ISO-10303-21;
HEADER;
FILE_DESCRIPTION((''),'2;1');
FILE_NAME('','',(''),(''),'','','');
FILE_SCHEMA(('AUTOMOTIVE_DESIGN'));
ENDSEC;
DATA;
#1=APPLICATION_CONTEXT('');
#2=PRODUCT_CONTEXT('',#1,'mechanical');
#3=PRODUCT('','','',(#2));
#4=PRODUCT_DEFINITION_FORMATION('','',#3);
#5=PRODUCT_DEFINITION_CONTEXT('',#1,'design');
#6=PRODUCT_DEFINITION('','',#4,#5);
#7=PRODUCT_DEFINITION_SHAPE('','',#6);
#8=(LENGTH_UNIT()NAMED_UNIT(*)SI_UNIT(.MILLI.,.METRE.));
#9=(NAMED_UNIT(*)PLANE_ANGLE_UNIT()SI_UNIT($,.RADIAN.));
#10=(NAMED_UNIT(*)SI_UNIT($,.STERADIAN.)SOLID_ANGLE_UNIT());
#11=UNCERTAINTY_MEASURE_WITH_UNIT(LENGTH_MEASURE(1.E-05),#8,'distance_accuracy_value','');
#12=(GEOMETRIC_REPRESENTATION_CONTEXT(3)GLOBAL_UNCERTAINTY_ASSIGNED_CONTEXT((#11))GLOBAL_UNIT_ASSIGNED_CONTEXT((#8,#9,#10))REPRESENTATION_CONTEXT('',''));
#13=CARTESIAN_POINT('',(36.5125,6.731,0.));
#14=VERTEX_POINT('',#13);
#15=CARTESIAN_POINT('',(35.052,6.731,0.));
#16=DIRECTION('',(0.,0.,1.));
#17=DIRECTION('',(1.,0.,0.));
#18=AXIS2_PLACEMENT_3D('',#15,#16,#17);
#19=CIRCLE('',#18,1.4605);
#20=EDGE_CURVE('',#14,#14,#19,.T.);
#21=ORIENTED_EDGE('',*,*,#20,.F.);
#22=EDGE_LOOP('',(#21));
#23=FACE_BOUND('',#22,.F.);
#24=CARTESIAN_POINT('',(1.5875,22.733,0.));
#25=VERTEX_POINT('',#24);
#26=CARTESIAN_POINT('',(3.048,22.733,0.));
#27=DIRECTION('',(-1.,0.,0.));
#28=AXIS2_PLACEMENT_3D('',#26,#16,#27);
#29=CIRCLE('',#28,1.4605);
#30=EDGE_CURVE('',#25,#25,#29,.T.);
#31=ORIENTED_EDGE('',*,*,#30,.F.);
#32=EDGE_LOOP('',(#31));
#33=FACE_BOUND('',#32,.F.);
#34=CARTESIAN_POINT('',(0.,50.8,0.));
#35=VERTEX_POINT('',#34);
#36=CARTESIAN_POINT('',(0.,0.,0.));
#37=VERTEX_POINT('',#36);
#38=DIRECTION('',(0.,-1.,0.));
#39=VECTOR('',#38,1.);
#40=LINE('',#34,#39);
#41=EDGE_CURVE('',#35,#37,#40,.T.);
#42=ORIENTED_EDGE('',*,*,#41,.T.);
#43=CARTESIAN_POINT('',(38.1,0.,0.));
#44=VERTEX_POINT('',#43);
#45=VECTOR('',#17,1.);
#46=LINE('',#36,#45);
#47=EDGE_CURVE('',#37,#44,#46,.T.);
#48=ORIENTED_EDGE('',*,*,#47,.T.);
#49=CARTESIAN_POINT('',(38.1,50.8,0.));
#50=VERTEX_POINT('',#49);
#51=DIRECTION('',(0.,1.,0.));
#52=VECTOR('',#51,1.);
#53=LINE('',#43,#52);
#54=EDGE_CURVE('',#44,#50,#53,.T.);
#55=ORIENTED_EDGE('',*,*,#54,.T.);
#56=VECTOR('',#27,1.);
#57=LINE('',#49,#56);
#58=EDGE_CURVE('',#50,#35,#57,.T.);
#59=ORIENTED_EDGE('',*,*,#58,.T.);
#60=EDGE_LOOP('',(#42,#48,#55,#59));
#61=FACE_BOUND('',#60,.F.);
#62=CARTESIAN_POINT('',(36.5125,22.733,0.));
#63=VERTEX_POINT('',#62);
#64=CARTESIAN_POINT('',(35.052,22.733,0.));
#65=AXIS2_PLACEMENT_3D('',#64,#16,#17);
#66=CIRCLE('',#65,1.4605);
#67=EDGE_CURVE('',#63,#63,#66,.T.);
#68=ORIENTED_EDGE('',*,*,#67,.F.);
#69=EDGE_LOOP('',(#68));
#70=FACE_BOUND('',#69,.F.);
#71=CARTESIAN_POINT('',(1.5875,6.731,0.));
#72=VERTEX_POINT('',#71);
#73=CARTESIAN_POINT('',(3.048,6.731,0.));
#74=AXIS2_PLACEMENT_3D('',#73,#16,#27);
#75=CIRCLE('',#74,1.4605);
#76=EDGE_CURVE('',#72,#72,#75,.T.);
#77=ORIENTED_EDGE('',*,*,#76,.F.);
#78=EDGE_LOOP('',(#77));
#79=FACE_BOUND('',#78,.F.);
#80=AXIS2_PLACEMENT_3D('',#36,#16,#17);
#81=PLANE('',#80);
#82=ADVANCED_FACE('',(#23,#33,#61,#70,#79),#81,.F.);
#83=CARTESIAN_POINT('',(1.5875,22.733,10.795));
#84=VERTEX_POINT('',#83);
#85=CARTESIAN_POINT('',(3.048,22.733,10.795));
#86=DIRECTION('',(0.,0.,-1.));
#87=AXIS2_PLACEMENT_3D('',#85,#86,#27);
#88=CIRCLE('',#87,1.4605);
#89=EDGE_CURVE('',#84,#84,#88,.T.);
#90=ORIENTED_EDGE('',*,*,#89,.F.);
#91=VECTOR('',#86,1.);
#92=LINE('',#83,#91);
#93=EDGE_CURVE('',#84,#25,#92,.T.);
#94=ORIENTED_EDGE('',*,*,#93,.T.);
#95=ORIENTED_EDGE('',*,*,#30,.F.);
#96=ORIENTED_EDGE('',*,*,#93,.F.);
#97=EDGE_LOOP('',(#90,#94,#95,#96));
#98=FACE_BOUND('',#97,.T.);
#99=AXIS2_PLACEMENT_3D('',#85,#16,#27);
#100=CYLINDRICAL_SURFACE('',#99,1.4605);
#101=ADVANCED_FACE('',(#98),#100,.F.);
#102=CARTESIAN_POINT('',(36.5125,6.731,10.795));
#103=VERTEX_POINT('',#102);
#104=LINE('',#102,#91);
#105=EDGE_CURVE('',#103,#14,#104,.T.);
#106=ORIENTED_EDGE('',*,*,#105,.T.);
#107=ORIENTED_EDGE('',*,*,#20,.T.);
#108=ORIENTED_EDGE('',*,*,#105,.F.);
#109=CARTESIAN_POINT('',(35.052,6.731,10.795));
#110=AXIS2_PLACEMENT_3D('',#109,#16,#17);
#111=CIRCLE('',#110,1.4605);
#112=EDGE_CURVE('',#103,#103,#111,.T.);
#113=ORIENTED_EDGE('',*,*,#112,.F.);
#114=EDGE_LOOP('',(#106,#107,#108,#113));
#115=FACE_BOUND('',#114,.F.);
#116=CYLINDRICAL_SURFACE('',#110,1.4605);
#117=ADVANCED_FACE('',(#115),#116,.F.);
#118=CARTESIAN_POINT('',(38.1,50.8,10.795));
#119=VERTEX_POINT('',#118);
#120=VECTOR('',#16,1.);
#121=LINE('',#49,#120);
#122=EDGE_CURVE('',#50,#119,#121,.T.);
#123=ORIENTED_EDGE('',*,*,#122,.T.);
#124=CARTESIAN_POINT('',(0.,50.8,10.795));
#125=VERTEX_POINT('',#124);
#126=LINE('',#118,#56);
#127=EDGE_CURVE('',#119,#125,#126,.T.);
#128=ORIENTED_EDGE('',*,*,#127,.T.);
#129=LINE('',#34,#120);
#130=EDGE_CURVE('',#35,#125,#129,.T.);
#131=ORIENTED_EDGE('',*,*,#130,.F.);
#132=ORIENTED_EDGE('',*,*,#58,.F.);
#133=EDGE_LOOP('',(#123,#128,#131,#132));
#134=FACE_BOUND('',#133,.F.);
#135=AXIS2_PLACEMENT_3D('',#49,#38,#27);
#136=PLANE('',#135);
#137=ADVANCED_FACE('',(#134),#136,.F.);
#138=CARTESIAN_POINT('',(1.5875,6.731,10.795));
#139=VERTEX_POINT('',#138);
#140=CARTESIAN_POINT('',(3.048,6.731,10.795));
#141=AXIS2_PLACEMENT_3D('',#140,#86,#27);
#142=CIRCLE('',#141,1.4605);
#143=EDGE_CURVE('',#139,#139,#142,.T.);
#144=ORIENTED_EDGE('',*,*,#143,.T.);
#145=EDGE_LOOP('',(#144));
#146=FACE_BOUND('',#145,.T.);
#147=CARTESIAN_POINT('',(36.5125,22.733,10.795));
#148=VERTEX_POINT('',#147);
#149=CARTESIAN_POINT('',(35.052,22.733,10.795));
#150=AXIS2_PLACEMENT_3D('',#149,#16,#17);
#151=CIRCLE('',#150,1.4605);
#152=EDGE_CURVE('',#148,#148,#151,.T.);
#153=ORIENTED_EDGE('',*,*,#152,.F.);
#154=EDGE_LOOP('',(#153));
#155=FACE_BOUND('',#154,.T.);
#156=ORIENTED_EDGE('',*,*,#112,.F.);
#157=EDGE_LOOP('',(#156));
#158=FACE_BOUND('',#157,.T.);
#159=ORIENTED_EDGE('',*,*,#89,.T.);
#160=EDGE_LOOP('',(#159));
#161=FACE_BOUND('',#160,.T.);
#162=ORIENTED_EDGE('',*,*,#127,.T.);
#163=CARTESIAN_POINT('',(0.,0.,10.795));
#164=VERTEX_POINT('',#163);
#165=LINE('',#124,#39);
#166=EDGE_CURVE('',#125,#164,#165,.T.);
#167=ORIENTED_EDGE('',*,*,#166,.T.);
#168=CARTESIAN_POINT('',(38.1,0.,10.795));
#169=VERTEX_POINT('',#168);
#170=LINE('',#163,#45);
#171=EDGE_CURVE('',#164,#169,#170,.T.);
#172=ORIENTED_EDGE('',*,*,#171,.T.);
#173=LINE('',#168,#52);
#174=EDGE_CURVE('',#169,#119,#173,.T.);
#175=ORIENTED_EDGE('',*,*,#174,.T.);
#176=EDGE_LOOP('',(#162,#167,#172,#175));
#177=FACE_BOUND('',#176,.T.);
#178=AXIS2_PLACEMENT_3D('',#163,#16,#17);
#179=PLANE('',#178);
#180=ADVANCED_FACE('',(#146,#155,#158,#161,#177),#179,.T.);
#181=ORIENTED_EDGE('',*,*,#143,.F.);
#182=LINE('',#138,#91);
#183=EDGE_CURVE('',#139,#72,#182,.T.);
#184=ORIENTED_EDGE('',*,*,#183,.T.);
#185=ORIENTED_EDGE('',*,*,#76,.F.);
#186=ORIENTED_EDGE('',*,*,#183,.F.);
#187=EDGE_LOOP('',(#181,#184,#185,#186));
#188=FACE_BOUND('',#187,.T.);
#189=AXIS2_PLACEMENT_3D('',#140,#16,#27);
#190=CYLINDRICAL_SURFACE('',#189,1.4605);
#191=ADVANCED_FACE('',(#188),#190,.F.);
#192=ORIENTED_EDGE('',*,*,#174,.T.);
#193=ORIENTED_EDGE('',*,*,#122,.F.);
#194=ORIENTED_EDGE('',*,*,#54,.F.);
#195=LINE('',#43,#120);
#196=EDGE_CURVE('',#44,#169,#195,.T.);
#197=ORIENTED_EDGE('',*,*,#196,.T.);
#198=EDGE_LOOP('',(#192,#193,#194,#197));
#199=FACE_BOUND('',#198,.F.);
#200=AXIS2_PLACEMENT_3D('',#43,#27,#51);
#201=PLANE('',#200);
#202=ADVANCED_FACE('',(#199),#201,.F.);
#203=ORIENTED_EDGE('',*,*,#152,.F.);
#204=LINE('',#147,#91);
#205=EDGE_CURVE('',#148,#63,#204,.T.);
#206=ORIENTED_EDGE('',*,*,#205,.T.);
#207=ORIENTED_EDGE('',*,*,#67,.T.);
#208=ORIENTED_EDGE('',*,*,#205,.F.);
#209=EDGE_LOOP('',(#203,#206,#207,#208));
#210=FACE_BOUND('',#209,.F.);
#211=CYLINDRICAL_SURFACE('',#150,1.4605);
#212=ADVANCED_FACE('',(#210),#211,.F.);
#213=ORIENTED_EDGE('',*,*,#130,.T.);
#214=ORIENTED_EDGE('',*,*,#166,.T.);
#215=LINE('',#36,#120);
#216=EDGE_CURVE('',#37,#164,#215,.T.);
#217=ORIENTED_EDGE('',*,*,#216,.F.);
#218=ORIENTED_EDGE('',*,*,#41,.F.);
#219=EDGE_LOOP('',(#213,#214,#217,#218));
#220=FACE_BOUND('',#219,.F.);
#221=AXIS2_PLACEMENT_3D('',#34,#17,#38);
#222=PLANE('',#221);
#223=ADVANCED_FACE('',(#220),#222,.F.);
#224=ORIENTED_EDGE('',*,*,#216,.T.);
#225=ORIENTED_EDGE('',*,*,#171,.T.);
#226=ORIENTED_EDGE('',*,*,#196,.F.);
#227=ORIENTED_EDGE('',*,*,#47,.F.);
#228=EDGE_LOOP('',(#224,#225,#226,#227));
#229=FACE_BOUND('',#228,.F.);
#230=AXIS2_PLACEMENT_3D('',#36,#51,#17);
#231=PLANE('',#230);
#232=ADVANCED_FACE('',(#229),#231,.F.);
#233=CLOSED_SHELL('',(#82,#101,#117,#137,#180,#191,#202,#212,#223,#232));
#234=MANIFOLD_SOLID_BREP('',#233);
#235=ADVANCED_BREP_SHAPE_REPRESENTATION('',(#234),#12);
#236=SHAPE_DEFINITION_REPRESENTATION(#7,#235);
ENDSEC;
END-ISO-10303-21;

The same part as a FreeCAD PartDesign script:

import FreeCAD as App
import Part
import Sketcher

V = App.Vector
Q = App.Units.Quantity

doc = App.newDocument("Part")
params = doc.addObject("Spreadsheet::Sheet", "Params")
for row, (alias, value) in enumerate([
    ("sketch1_height", "2 in"),
    ("sketch1_width", "1.5 in"),
    ("pad1_length", "0.425 in"),
    ("sketch2_diameter", "0.115 in"),
], start=1):
    params.set(f"A{row}", alias)
    params.set(f"B{row}", "=" + value)
    params.setAlias(f"B{row}", alias)

body = doc.addObject("PartDesign::Body", "Body")

# Sketch on XY plane
sketch1 = body.newObject("Sketcher::SketchObject", "Sketch")
sketch1.AttachmentSupport = (doc.getObject("XY_Plane"), [""])
sketch1.MapMode = "FlatFace"
sketch1.addGeometry([
    Part.LineSegment(V(0, 50.8, 0), V(0, 0, 0)),
    Part.LineSegment(V(0, 0, 0), V(38.1, 0, 0)),
    Part.LineSegment(V(38.1, 0, 0), V(38.1, 50.8, 0)),
    Part.LineSegment(V(38.1, 50.8, 0), V(0, 50.8, 0)),
], False)
sketch1.addConstraint([
    Sketcher.Constraint("Coincident", 0, 2, 1, 1),
    Sketcher.Constraint("Coincident", 1, 2, 2, 1),
    Sketcher.Constraint("Coincident", 2, 2, 3, 1),
    Sketcher.Constraint("Coincident", 3, 2, 0, 1),
    Sketcher.Constraint("Vertical", 0),
    Sketcher.Constraint("Horizontal", 1),
    Sketcher.Constraint("Vertical", 2),
    Sketcher.Constraint("Horizontal", 3),
    Sketcher.Constraint("Coincident", 0, 2, -1, 1),
    Sketcher.Constraint("DistanceY", 0, 2, 0, 1, Q("2 in")),
    Sketcher.Constraint("DistanceX", 1, 1, 1, 2, Q("1.5 in")),
])
sketch1.setExpression("Constraints[9]", "Params.sketch1_height")
sketch1.setExpression("Constraints[10]", "Params.sketch1_width")
pad1 = body.newObject("PartDesign::Pad", "Pad")
pad1.Profile = sketch1
pad1.setExpression("Length", "Params.pad1_length")

# Sketch on XY plane
sketch2 = body.newObject("Sketcher::SketchObject", "Sketch001")
sketch2.AttachmentSupport = (doc.getObject("XY_Plane"), [""])
sketch2.MapMode = "FlatFace"
sketch2.AttachmentOffset = App.Placement(V(0, 0, 0.425 * 25.4), App.Rotation())
sketch2.addGeometry([
    Part.Circle(V(35.052, 6.731, 0), V(0, 0, 1), 1.4605),
    Part.Circle(V(35.052, 22.733, 0), V(0, 0, 1), 1.4605),
], False)
sketch2.addConstraint([
    Sketcher.Constraint("Equal", 0, 1),
    Sketcher.Constraint("Vertical", 0, 3, 1, 3),
    Sketcher.Constraint("Diameter", 0, Q("0.115 in")),
    Sketcher.Constraint("DistanceY", 0, 3, 1, 3, Q("0.63 in")),
    Sketcher.Constraint("DistanceY", -1, 1, 0, 3, Q("0.265 in")),
    Sketcher.Constraint("DistanceX", -1, 1, 0, 3, Q("1.38 in")),
])
sketch2.setExpression("Constraints[2]", "Params.sketch2_diameter")
pocket1 = body.newObject("PartDesign::Pocket", "Pocket")
pocket1.Profile = sketch2
pocket1.Type = "ThroughAll"
doc.recompute()

datumplane = body.newObject("PartDesign::Plane", "DatumPlane")
datumplane.AttachmentSupport = (doc.getObject("YZ_Plane"), [""])
datumplane.MapMode = "FlatFace"
datumplane.AttachmentOffset = App.Placement(V(0, 0, 0.75 * 25.4), App.Rotation())
mirrored = body.newObject("PartDesign::Mirrored", "Mirrored")
mirrored.Originals = [pocket1]
mirrored.MirrorPlane = (datumplane, [""])
body.Tip = mirrored

doc.recompute()
